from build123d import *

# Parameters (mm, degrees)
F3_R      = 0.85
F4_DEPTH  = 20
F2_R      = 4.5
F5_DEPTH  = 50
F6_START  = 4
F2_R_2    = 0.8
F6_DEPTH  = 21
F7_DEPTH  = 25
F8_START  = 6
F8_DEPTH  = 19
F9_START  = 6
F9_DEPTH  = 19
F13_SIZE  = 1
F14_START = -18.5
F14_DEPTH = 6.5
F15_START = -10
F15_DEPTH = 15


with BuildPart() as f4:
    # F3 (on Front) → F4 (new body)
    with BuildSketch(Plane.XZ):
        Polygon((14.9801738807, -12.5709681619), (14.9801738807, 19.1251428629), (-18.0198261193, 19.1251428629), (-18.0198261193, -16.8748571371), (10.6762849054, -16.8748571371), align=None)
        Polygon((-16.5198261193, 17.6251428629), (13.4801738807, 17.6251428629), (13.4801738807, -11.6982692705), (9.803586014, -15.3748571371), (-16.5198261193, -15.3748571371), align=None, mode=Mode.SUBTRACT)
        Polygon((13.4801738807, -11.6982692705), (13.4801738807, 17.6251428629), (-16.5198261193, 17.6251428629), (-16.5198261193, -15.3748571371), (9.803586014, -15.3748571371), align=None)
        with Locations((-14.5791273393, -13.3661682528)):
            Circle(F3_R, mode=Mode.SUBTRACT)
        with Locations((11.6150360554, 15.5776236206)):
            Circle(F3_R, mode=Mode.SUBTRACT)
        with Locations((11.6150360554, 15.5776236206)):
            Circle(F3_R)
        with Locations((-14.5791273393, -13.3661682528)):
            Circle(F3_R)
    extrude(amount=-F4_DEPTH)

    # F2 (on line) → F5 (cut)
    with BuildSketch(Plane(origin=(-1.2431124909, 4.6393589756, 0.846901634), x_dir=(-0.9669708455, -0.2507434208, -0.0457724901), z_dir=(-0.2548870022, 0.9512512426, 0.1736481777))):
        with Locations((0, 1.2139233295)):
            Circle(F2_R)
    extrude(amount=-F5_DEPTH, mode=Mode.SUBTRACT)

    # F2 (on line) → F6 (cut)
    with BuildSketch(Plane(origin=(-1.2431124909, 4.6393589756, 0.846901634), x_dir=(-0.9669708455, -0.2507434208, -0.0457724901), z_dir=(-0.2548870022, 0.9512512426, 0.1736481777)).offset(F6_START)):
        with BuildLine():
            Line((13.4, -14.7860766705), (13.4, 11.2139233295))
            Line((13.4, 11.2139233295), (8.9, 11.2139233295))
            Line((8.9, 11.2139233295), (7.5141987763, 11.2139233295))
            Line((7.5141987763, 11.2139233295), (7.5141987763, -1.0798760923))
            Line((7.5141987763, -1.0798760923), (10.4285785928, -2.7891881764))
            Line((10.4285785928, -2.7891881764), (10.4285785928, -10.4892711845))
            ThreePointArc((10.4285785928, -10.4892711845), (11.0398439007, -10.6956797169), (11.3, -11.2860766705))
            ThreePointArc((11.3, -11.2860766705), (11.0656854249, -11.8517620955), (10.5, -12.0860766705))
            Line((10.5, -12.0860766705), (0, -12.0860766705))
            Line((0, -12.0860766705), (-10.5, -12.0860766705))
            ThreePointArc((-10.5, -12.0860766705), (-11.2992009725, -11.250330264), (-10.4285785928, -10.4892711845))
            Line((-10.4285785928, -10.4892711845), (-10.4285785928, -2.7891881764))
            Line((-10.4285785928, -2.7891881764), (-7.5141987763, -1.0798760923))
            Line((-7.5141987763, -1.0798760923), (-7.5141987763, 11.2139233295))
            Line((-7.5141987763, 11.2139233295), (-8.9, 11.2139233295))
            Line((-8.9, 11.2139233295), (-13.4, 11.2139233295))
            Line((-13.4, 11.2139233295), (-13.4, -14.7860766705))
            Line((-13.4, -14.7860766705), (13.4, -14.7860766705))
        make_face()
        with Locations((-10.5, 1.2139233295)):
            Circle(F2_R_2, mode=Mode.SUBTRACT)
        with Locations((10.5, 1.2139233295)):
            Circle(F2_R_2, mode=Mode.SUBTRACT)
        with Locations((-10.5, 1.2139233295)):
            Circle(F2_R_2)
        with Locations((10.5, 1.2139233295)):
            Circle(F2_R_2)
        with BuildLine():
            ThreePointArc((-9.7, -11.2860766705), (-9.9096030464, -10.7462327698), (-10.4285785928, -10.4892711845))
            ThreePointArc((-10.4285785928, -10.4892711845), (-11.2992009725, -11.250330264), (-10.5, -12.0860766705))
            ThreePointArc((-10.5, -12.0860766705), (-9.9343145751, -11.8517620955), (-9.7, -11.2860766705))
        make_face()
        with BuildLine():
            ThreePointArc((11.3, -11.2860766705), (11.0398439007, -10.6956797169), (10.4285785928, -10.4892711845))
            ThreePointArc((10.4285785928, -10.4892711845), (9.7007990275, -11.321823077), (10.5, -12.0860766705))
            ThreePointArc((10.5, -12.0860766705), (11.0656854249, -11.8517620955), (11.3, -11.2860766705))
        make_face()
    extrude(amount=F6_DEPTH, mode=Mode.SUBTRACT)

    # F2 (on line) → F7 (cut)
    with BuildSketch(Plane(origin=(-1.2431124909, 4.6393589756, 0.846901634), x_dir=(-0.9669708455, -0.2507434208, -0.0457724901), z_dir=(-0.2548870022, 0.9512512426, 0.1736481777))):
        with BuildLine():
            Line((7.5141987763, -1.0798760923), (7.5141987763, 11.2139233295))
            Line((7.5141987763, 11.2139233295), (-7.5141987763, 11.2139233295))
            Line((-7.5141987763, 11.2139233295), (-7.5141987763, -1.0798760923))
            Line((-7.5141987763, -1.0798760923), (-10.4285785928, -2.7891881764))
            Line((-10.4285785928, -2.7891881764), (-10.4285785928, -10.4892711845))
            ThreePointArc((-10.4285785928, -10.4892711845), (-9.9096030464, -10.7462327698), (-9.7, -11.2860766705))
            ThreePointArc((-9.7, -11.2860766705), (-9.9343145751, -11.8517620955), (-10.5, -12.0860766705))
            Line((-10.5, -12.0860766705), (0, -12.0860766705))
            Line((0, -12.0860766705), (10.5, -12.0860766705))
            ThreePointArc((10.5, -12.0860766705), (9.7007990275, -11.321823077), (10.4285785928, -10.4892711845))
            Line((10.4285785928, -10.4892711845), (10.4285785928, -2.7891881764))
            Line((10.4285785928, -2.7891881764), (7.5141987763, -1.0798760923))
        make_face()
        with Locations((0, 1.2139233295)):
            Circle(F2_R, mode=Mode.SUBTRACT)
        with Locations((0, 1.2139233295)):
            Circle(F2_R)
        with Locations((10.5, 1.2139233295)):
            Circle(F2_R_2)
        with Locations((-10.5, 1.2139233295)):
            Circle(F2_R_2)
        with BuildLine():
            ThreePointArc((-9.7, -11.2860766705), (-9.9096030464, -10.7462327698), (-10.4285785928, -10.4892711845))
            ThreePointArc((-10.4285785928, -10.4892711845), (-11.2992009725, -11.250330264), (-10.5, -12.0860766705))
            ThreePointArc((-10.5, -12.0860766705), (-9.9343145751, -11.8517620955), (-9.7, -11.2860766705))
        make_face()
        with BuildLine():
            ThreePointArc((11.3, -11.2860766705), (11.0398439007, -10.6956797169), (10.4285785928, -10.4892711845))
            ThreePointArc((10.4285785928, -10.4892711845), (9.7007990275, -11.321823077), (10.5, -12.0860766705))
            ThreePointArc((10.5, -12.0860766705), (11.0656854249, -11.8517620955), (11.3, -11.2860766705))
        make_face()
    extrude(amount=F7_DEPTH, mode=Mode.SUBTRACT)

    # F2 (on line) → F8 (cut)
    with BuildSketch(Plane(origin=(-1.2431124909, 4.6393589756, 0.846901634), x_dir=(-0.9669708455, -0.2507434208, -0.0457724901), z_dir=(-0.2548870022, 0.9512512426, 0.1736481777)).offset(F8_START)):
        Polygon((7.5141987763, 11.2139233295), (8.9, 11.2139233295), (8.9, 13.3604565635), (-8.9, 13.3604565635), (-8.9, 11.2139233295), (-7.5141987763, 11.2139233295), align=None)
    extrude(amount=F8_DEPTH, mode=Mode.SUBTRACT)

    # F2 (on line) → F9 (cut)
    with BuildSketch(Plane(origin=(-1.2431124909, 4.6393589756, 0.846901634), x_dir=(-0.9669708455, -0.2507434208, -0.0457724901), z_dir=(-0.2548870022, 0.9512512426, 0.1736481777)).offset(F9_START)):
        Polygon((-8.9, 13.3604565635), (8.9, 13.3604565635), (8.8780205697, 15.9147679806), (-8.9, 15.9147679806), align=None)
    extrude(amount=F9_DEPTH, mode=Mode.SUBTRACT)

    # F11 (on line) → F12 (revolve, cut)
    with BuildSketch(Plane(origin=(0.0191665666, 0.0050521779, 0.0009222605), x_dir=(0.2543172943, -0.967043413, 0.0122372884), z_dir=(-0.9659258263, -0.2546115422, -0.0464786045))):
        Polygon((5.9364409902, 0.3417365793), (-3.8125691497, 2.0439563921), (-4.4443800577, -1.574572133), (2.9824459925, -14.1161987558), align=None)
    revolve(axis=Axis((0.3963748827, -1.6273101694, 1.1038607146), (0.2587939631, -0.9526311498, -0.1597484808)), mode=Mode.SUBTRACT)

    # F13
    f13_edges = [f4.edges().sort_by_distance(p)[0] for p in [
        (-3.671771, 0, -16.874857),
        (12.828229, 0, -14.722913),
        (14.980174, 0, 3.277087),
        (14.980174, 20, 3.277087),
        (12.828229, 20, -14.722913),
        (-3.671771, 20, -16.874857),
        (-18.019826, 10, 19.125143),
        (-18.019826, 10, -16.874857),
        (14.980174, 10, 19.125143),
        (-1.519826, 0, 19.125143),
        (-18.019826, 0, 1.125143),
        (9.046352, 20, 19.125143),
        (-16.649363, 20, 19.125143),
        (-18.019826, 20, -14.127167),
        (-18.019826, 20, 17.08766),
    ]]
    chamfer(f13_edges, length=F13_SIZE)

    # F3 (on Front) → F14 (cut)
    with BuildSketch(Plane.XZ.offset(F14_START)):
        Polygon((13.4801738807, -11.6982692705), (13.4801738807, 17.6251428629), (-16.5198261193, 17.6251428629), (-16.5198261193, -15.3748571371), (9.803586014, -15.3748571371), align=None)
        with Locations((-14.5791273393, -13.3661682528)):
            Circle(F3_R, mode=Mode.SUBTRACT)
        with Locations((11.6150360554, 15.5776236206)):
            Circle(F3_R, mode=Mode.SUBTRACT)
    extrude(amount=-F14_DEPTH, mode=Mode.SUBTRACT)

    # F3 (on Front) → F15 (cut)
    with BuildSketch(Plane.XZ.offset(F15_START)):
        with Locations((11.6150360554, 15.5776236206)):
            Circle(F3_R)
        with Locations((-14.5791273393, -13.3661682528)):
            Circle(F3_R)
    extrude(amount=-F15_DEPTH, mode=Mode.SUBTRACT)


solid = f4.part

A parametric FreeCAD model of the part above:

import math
import FreeCAD as App
import Part
import Sketcher

V = App.Vector
Q = App.Units.Quantity


def edges_at(feature, points):
    """Names of the edges that pass closest to the given points."""
    edges = feature.Shape.Edges
    near = lambda p: min(range(len(edges)), key=lambda i: edges[i].distToShape(Part.Vertex(*p))[0])
    return sorted({f"Edge{near(p) + 1}" for p in points})


def add_polygon(sketch, points):
    """Adds a closed chain of lines whose ends are joined by coincident constraints."""
    first, n = sketch.GeometryCount, len(points)
    for a, b in zip(points, points[1:] + points[:1]):
        sketch.addGeometry(Part.LineSegment(App.Vector(*a, 0), App.Vector(*b, 0)), False)
    for i in range(n):
        sketch.addConstraint(Sketcher.Constraint("Coincident", first + i, 2, first + (i + 1) % n, 1))

doc = App.newDocument("Part")
body = doc.addObject("PartDesign::Body", "Body")

sketch1 = body.newObject("Sketcher::SketchObject", "Sketch")
sketch1.AttachmentSupport = (doc.getObject("XZ_Plane"), [""])
sketch1.MapMode = "FlatFace"
add_polygon(sketch1, [(14.980174, -12.570968), (14.980174, 19.125143), (-18.019826, 19.125143), (-18.019826, -16.874857), (10.676285, -16.874857)])
sketch1.addConstraint([
    Sketcher.Constraint("Vertical", 0),
    Sketcher.Constraint("Horizontal", 1),
    Sketcher.Constraint("Vertical", 2),
    Sketcher.Constraint("Horizontal", 3),
    Sketcher.Constraint("DistanceX", 1, 2, 1, 1, Q("33 mm")),
    Sketcher.Constraint("DistanceY", 2, 2, 2, 1, Q("36 mm")),
    Sketcher.Constraint("Angle", 4, Q("45 deg")),
    Sketcher.Constraint("DistanceX", 3, 1, 3, 2, Q("28.696111 mm")),
    Sketcher.Constraint("DistanceY", 4, 2, -1, 1, Q("12.570968 mm")),
    Sketcher.Constraint("DistanceX", -1, 1, 0, 2, Q("14.980174 mm")),
])
pad1 = body.newObject("PartDesign::Pad", "Pad")
pad1.Profile = sketch1
pad1.Length = 20
pad1.Reversed = True

sketch2 = body.newObject("Sketcher::SketchObject", "Sketch001")
sketch2.Placement = App.Placement(V(-1.243112, 4.639359, 0.846902), App.Rotation(V(-0.966970846, -0.250743421, -0.04577249), V(0, -0.179579538, 0.983743458), V(-0.254887002, 0.951251243, 0.173648178), "ZXY"))
sketch2.addGeometry(Part.Circle(V(0, 1.213923, 0), V(0, 0, 1), 4.5), False)
sketch2.addConstraint([
    Sketcher.Constraint("PointOnObject", 0, 3, -2),
    Sketcher.Constraint("Diameter", 0, Q("9 mm")),
    Sketcher.Constraint("DistanceY", -1, 1, 0, 3, Q("1.213923 mm")),
])
pocket1 = body.newObject("PartDesign::Pocket", "Pocket")
pocket1.Profile = sketch2
pocket1.Length = 50

sketch3 = body.newObject("Sketcher::SketchObject", "Sketch002")
sketch3.Placement = App.Placement(V(-2.26266, 8.444364, 1.541494), App.Rotation(V(-0.966970846, -0.250743421, -0.04577249), V(0, -0.179579538, 0.983743458), V(-0.254887002, 0.951251243, 0.173648178), "ZXY"))
sketch3.addGeometry([
    Part.LineSegment(V(13.4, -14.786077, 0), V(13.4, 11.213923, 0)),
    Part.LineSegment(V(13.4, 11.213923, 0), V(7.514199, 11.213923, 0)),
    Part.LineSegment(V(7.514199, 11.213923, 0), V(7.514199, -1.079876, 0)),
    Part.LineSegment(V(7.514199, -1.079876, 0), V(10.428579, -2.789188, 0)),
    Part.LineSegment(V(10.428579, -2.789188, 0), V(10.428579, -10.489271, 0)),
    Part.ArcOfCircle(Part.Circle(V(10.5, -11.286077, 0), V(0, 0, 1), 0.8), math.radians(95.122001), math.radians(270)),
    Part.LineSegment(V(10.5, -12.086077, 0), V(-10.5, -12.086077, 0)),
    Part.ArcOfCircle(Part.Circle(V(-10.5, -11.286077, 0), V(0, 0, 1), 0.8), math.radians(-90), math.radians(0)),
    Part.ArcOfCircle(Part.Circle(V(-10.5, -11.286077, 0), V(0, 0, 1), 0.8), math.radians(0), math.radians(84.877999)),
    Part.LineSegment(V(-10.428579, -10.489271, 0), V(-10.428579, -2.789188, 0)),
    Part.LineSegment(V(-10.428579, -2.789188, 0), V(-7.514199, -1.079876, 0)),
    Part.LineSegment(V(-7.514199, -1.079876, 0), V(-7.514199, 11.213923, 0)),
    Part.LineSegment(V(-7.514199, 11.213923, 0), V(-13.4, 11.213923, 0)),
    Part.LineSegment(V(-13.4, 11.213923, 0), V(-13.4, -14.786077, 0)),
    Part.LineSegment(V(-13.4, -14.786077, 0), V(13.4, -14.786077, 0)),
], False)
sketch3.addConstraint([
    Sketcher.Constraint("Coincident", 0, 2, 1, 1),
    Sketcher.Constraint("Coincident", 1, 2, 2, 1),
    Sketcher.Constraint("Coincident", 2, 2, 3, 1),
    Sketcher.Constraint("Coincident", 3, 2, 4, 1),
    Sketcher.Constraint("Coincident", 4, 2, 5, 1),
    Sketcher.Constraint("Tangent", 5, 2, 6, 1),
    Sketcher.Constraint("Tangent", 6, 2, 7, 1),
    Sketcher.Constraint("Tangent", 7, 2, 8, 1),
    Sketcher.Constraint("Coincident", 8, 2, 9, 1),
    Sketcher.Constraint("Coincident", 9, 2, 10, 1),
    Sketcher.Constraint("Coincident", 10, 2, 11, 1),
    Sketcher.Constraint("Coincident", 11, 2, 12, 1),
    Sketcher.Constraint("Coincident", 12, 2, 13, 1),
    Sketcher.Constraint("Coincident", 13, 2, 14, 1),
    Sketcher.Constraint("Coincident", 14, 2, 0, 1),
    Sketcher.Constraint("Vertical", 0),
    Sketcher.Constraint("Horizontal", 1),
    Sketcher.Constraint("Vertical", 2),
    Sketcher.Constraint("Vertical", 4),
    Sketcher.Constraint("Horizontal", 6),
    Sketcher.Constraint("Vertical", 9),
    Sketcher.Constraint("Vertical", 11),
    Sketcher.Constraint("Horizontal", 12),
    Sketcher.Constraint("Vertical", 13),
    Sketcher.Constraint("Horizontal", 14),
    Sketcher.Constraint("Equal", 5, 7),
    Sketcher.Constraint("Equal", 7, 8),
    Sketcher.Constraint("Symmetric", 4, 2, 8, 2, -2),
    Sketcher.Constraint("Symmetric", 2, 2, 10, 2, -2),
    Sketcher.Constraint("Symmetric", 0, 2, 12, 2, -2),
    Sketcher.Constraint("Horizontal", 8, 3, 7, 2),
    Sketcher.Constraint("Horizontal", 3, 2, 9, 2),
    Sketcher.Constraint("Radius", 5, Q("0.8 mm")),
    Sketcher.Constraint("DistanceX", 6, 2, 6, 1, Q("21 mm")),
    Sketcher.Constraint("DistanceY", 0, 1, 0, 2, Q("26 mm")),
    Sketcher.Constraint("DistanceX", 14, 1, 14, 2, Q("26.8 mm")),
    Sketcher.Constraint("DistanceY", 5, 3, 0, 2, Q("22.5 mm")),
    Sketcher.Constraint("DistanceX", 1, 2, 1, 1, Q("5.885801 mm")),
    Sketcher.Constraint("DistanceY", 2, 2, 2, 1, Q("12.293799 mm")),
    Sketcher.Constraint("DistanceY", 4, 2, 4, 1, Q("7.700083 mm")),
    Sketcher.Constraint("DistanceX", -1, 1, 3, 2, Q("10.428579 mm")),
    Sketcher.Constraint("DistanceY", 3, 2, -1, 1, Q("2.789188 mm")),
])
pocket2 = body.newObject("PartDesign::Pocket", "Pocket001")
pocket2.Profile = sketch3
pocket2.Length = 21
pocket2.Reversed = True

sketch4 = body.newObject("Sketcher::SketchObject", "Sketch003")
sketch4.Placement = App.Placement(V(-1.243112, 4.639359, 0.846902), App.Rotation(V(-0.966970846, -0.250743421, -0.04577249), V(0, -0.179579538, 0.983743458), V(-0.254887002, 0.951251243, 0.173648178), "ZXY"))
sketch4.addGeometry([
    Part.LineSegment(V(7.514199, -1.079876, 0), V(7.514199, 11.213923, 0)),
    Part.LineSegment(V(7.514199, 11.213923, 0), V(-7.514199, 11.213923, 0)),
    Part.LineSegment(V(-7.514199, 11.213923, 0), V(-7.514199, -1.079876, 0)),
    Part.LineSegment(V(-7.514199, -1.079876, 0), V(-10.428579, -2.789188, 0)),
    Part.LineSegment(V(-10.428579, -2.789188, 0), V(-10.428579, -10.489271, 0)),
    Part.ArcOfCircle(Part.Circle(V(-10.5, -11.286077, 0), V(0, 0, 1), 0.8), math.radians(84.877999), math.radians(270)),
    Part.LineSegment(V(-10.5, -12.086077, 0), V(10.5, -12.086077, 0)),
    Part.ArcOfCircle(Part.Circle(V(10.5, -11.286077, 0), V(0, 0, 1), 0.8), math.radians(-90), math.radians(0)),
    Part.ArcOfCircle(Part.Circle(V(10.5, -11.286077, 0), V(0, 0, 1), 0.8), math.radians(0), math.radians(95.122001)),
    Part.LineSegment(V(10.428579, -10.489271, 0), V(10.428579, -2.789188, 0)),
    Part.LineSegment(V(10.428579, -2.789188, 0), V(7.514199, -1.079876, 0)),
    Part.Circle(V(10.5, 1.213923, 0), V(0, 0, 1), 0.8),
    Part.Circle(V(-10.5, 1.213923, 0), V(0, 0, 1), 0.8),
], False)
sketch4.addConstraint([
    Sketcher.Constraint("Coincident", 0, 2, 1, 1),
    Sketcher.Constraint("Coincident", 1, 2, 2, 1),
    Sketcher.Constraint("Coincident", 2, 2, 3, 1),
    Sketcher.Constraint("Coincident", 3, 2, 4, 1),
    Sketcher.Constraint("Coincident", 4, 2, 5, 1),
    Sketcher.Constraint("Tangent", 5, 2, 6, 1),
    Sketcher.Constraint("Tangent", 6, 2, 7, 1),
    Sketcher.Constraint("Tangent", 7, 2, 8, 1),
    Sketcher.Constraint("Coincident", 8, 2, 9, 1),
    Sketcher.Constraint("Coincident", 9, 2, 10, 1),
    Sketcher.Constraint("Coincident", 10, 2, 0, 1),
    Sketcher.Constraint("Vertical", 0),
    Sketcher.Constraint("Horizontal", 1),
    Sketcher.Constraint("Vertical", 2),
    Sketcher.Constraint("Vertical", 4),
    Sketcher.Constraint("Horizontal", 6),
    Sketcher.Constraint("Vertical", 9),
    Sketcher.Constraint("Equal", 5, 7),
    Sketcher.Constraint("Equal", 7, 8),
    Sketcher.Constraint("Equal", 8, 11),
    Sketcher.Constraint("Equal", 11, 12),
    Sketcher.Constraint("Symmetric", 11, 3, 12, 3, -2),
    Sketcher.Constraint("Symmetric", 4, 2, 8, 2, -2),
    Sketcher.Constraint("Symmetric", 2, 2, 10, 2, -2),
    Sketcher.Constraint("Horizontal", 8, 3, 7, 2),
    Sketcher.Constraint("Horizontal", 3, 2, 9, 2),
    Sketcher.Constraint("Vertical", 8, 3, 11, 3),
    Sketcher.Constraint("Diameter", 11, Q("1.6 mm")),
    Sketcher.Constraint("DistanceX", 6, 1, 6, 2, Q("21 mm")),
    Sketcher.Constraint("DistanceY", 11, 3, 0, 2, Q("10 mm")),
    Sketcher.Constraint("DistanceY", 7, 3, 11, 3, Q("12.5 mm")),
    Sketcher.Constraint("DistanceY", 0, 1, 0, 2, Q("12.293799 mm")),
    Sketcher.Constraint("DistanceX", -1, 1, 0, 2, Q("7.514199 mm")),
    Sketcher.Constraint("DistanceY", 4, 2, 4, 1, Q("7.700083 mm")),
    Sketcher.Constraint("DistanceX", 3, 2, -1, 1, Q("10.428579 mm")),
    Sketcher.Constraint("DistanceY", 3, 2, -1, 1, Q("2.789188 mm")),
])
pocket3 = body.newObject("PartDesign::Pocket", "Pocket002")
pocket3.Profile = sketch4
pocket3.Length = 25
pocket3.Reversed = True

sketch5 = body.newObject("Sketcher::SketchObject", "Sketch004")
sketch5.Placement = App.Placement(V(-2.772435, 10.346866, 1.888791), App.Rotation(V(-0.966970846, -0.250743421, -0.04577249), V(0, -0.179579538, 0.983743458), V(-0.254887002, 0.951251243, 0.173648178), "ZXY"))
add_polygon(sketch5, [(8.9, 11.213923), (8.9, 13.360457), (-8.9, 13.360457), (-8.9, 11.213923)])
sketch5.addConstraint([
    Sketcher.Constraint("Vertical", 0),
    Sketcher.Constraint("Horizontal", 1),
    Sketcher.Constraint("Vertical", 2),
    Sketcher.Constraint("Horizontal", 3),
    Sketcher.Constraint("DistanceX", 1, 2, 1, 1, Q("17.8 mm")),
    Sketcher.Constraint("DistanceX", -1, 1, 0, 2, Q("8.9 mm")),
    Sketcher.Constraint("DistanceY", 0, 1, 0, 2, Q("2.146533 mm")),
    Sketcher.Constraint("DistanceY", -1, 1, 0, 2, Q("13.360457 mm")),
])
pocket4 = body.newObject("PartDesign::Pocket", "Pocket003")
pocket4.Profile = sketch5
pocket4.Length = 19
pocket4.Reversed = True

sketch6 = body.newObject("Sketcher::SketchObject", "Sketch005")
sketch6.Placement = App.Placement(V(-2.772435, 10.346866, 1.888791), App.Rotation(V(-0.966970846, -0.250743421, -0.04577249), V(0, -0.179579538, 0.983743458), V(-0.254887002, 0.951251243, 0.173648178), "ZXY"))
add_polygon(sketch6, [(-8.9, 13.360457), (8.9, 13.360457), (8.878021, 15.914768), (-8.9, 15.914768)])
sketch6.addConstraint([
    Sketcher.Constraint("Horizontal", 0),
    Sketcher.Constraint("Horizontal", 2),
    Sketcher.Constraint("Vertical", 3),
    Sketcher.Constraint("DistanceX", 0, 1, 0, 2, Q("17.8 mm")),
    Sketcher.Constraint("DistanceX", -1, 1, 0, 2, Q("8.9 mm")),
    Sketcher.Constraint("DistanceX", 2, 2, 2, 1, Q("17.778021 mm")),
    Sketcher.Constraint("DistanceY", 3, 2, 3, 1, Q("2.554311 mm")),
    Sketcher.Constraint("DistanceY", -1, 1, 1, 2, Q("15.914768 mm")),
])
pocket5 = body.newObject("PartDesign::Pocket", "Pocket004")
pocket5.Profile = sketch6
pocket5.Length = 19
pocket5.Reversed = True

sketch7 = body.newObject("Sketcher::SketchObject", "Sketch006")
sketch7.Placement = App.Placement(V(0.019167, 0.005052, 0.000922), App.Rotation(V(0.254317294, -0.967043413, 0.012237288), V(-0.048062583, 0, 0.998844326), V(-0.965925826, -0.254611542, -0.046478604), "ZXY"))
add_polygon(sketch7, [(5.936441, 0.341737), (-3.812569, 2.043956), (-4.44438, -1.574572), (2.982446, -14.116199)])
sketch7.addGeometry(Part.LineSegment(V(-3.812569, 2.043956, 0), V(5.936441, 0.341737, 0)), True)
sketch7.addConstraint([
    Sketcher.Constraint("Coincident", 4, 1, 0, 2),
    Sketcher.Constraint("Coincident", 4, 2, 3, 2),
    Sketcher.Constraint("Perpendicular", 0, 1),
    Sketcher.Constraint("Distance", 0, Q("9.896502 mm")),
    Sketcher.Constraint("DistanceY", 2, 2, -1, 1, Q("14.116199 mm")),
    Sketcher.Constraint("Distance", 2, Q("14.57567 mm")),
    Sketcher.Constraint("DistanceX", 0, 2, -1, 1, Q("3.812569 mm")),
    Sketcher.Constraint("DistanceX", 1, 2, -1, 1, Q("4.44438 mm")),
    Sketcher.Constraint("DistanceX", -1, 1, 3, 2, Q("5.936441 mm")),
    Sketcher.Constraint("Distance", 3, Q("14.756625 mm")),
])
groove = body.newObject("PartDesign::Groove", "Groove")
groove.Profile = sketch7
groove.ReferenceAxis = (sketch7, ["Axis0"])
groove.Angle = 360
doc.recompute()

chamfer = body.newObject("PartDesign::Chamfer", "Chamfer")
chamfer.Base = (groove, edges_at(groove, [
    (-3.672, 0, -16.875),
    (12.828, 0, -14.723),
    (14.98, 0, 3.277),
    (14.98, 20, 3.277),
    (12.828, 20, -14.723),
    (-3.672, 20, -16.875),
    (-18.02, 10, 19.125),
    (-18.02, 10, -16.875),
    (14.98, 10, 19.125),
    (-1.52, 0, 19.125),
    (-18.02, 0, 1.125),
    (9.046, 20, 19.125),
    (-16.649, 20, 19.125),
    (-18.02, 20, -14.127),
    (-18.02, 20, 17.088),
]))
chamfer.Size = 1

sketch8 = body.newObject("Sketcher::SketchObject", "Sketch007")
sketch8.AttachmentSupport = (doc.getObject("XZ_Plane"), [""])
sketch8.MapMode = "FlatFace"
sketch8.AttachmentOffset = App.Placement(V(0, 0, -18.5), App.Rotation())
add_polygon(sketch8, [(13.480174, -11.698269), (13.480174, 17.625143), (-16.519826, 17.625143), (-16.519826, -15.374857), (9.803586, -15.374857)])
sketch8.addGeometry(Part.Circle(V(-14.579127, -13.366168, 0), V(0, 0, 1), 0.85), False)
sketch8.addGeometry(Part.Circle(V(11.615036, 15.577624, 0), V(0, 0, 1), 0.85), False)
sketch8.addConstraint([
    Sketcher.Constraint("Vertical", 0),
    Sketcher.Constraint("Horizontal", 1),
    Sketcher.Constraint("Vertical", 2),
    Sketcher.Constraint("Horizontal", 3),
    Sketcher.Constraint("Equal", 5, 6),
    Sketcher.Constraint("Diameter", 5, Q("1.7 mm")),
    Sketcher.Constraint("DistanceX", 1, 2, 1, 1, Q("30 mm")),
    Sketcher.Constraint("DistanceY", 2, 2, 2, 1, Q("33 mm")),
    Sketcher.Constraint("Angle", 4, Q("45 deg")),
    Sketcher.Constraint("DistanceX", 5, 3, 0, 2, Q("28.059301 mm")),
    Sketcher.Constraint("DistanceY", 5, 3, 4, 2, Q("1.667899 mm")),
    Sketcher.Constraint("Distance", 4, Q("5.19948 mm")),
    Sketcher.Constraint("DistanceY", 5, 3, -1, 1, Q("13.366168 mm")),
    Sketcher.Constraint("DistanceY", 5, 3, 6, 3, Q("28.943792 mm")),
    Sketcher.Constraint("DistanceX", 3, 2, 6, 3, Q("1.81145 mm")),
    Sketcher.Constraint("DistanceX", 5, 3, -1, 1, Q("14.579127 mm")),
])
pocket6 = body.newObject("PartDesign::Pocket", "Pocket005")
pocket6.Profile = sketch8
pocket6.Length = 6.5

sketch9 = body.newObject("Sketcher::SketchObject", "Sketch008")
sketch9.AttachmentSupport = (doc.getObject("XZ_Plane"), [""])
sketch9.MapMode = "FlatFace"
sketch9.AttachmentOffset = App.Placement(V(0, 0, -10), App.Rotation())
sketch9.addGeometry([
    Part.Circle(V(11.615036, 15.577624, 0), V(0, 0, 1), 0.85),
    Part.Circle(V(-14.579127, -13.366168, 0), V(0, 0, 1), 0.85),
], False)
sketch9.addConstraint([
    Sketcher.Constraint("Equal", 0, 1),
    Sketcher.Constraint("Diameter", 0, Q("1.7 mm")),
    Sketcher.Constraint("DistanceY", 1, 3, -1, 1, Q("13.366168 mm")),
    Sketcher.Constraint("DistanceY", 1, 3, 0, 3, Q("28.943792 mm")),
    Sketcher.Constraint("DistanceX", -1, 1, 0, 3, Q("11.615036 mm")),
    Sketcher.Constraint("DistanceX", 1, 3, -1, 1, Q("14.579127 mm")),
])
pocket7 = body.newObject("PartDesign::Pocket", "Pocket006")
pocket7.Profile = sketch9
pocket7.Length = 15

doc.recompute()
